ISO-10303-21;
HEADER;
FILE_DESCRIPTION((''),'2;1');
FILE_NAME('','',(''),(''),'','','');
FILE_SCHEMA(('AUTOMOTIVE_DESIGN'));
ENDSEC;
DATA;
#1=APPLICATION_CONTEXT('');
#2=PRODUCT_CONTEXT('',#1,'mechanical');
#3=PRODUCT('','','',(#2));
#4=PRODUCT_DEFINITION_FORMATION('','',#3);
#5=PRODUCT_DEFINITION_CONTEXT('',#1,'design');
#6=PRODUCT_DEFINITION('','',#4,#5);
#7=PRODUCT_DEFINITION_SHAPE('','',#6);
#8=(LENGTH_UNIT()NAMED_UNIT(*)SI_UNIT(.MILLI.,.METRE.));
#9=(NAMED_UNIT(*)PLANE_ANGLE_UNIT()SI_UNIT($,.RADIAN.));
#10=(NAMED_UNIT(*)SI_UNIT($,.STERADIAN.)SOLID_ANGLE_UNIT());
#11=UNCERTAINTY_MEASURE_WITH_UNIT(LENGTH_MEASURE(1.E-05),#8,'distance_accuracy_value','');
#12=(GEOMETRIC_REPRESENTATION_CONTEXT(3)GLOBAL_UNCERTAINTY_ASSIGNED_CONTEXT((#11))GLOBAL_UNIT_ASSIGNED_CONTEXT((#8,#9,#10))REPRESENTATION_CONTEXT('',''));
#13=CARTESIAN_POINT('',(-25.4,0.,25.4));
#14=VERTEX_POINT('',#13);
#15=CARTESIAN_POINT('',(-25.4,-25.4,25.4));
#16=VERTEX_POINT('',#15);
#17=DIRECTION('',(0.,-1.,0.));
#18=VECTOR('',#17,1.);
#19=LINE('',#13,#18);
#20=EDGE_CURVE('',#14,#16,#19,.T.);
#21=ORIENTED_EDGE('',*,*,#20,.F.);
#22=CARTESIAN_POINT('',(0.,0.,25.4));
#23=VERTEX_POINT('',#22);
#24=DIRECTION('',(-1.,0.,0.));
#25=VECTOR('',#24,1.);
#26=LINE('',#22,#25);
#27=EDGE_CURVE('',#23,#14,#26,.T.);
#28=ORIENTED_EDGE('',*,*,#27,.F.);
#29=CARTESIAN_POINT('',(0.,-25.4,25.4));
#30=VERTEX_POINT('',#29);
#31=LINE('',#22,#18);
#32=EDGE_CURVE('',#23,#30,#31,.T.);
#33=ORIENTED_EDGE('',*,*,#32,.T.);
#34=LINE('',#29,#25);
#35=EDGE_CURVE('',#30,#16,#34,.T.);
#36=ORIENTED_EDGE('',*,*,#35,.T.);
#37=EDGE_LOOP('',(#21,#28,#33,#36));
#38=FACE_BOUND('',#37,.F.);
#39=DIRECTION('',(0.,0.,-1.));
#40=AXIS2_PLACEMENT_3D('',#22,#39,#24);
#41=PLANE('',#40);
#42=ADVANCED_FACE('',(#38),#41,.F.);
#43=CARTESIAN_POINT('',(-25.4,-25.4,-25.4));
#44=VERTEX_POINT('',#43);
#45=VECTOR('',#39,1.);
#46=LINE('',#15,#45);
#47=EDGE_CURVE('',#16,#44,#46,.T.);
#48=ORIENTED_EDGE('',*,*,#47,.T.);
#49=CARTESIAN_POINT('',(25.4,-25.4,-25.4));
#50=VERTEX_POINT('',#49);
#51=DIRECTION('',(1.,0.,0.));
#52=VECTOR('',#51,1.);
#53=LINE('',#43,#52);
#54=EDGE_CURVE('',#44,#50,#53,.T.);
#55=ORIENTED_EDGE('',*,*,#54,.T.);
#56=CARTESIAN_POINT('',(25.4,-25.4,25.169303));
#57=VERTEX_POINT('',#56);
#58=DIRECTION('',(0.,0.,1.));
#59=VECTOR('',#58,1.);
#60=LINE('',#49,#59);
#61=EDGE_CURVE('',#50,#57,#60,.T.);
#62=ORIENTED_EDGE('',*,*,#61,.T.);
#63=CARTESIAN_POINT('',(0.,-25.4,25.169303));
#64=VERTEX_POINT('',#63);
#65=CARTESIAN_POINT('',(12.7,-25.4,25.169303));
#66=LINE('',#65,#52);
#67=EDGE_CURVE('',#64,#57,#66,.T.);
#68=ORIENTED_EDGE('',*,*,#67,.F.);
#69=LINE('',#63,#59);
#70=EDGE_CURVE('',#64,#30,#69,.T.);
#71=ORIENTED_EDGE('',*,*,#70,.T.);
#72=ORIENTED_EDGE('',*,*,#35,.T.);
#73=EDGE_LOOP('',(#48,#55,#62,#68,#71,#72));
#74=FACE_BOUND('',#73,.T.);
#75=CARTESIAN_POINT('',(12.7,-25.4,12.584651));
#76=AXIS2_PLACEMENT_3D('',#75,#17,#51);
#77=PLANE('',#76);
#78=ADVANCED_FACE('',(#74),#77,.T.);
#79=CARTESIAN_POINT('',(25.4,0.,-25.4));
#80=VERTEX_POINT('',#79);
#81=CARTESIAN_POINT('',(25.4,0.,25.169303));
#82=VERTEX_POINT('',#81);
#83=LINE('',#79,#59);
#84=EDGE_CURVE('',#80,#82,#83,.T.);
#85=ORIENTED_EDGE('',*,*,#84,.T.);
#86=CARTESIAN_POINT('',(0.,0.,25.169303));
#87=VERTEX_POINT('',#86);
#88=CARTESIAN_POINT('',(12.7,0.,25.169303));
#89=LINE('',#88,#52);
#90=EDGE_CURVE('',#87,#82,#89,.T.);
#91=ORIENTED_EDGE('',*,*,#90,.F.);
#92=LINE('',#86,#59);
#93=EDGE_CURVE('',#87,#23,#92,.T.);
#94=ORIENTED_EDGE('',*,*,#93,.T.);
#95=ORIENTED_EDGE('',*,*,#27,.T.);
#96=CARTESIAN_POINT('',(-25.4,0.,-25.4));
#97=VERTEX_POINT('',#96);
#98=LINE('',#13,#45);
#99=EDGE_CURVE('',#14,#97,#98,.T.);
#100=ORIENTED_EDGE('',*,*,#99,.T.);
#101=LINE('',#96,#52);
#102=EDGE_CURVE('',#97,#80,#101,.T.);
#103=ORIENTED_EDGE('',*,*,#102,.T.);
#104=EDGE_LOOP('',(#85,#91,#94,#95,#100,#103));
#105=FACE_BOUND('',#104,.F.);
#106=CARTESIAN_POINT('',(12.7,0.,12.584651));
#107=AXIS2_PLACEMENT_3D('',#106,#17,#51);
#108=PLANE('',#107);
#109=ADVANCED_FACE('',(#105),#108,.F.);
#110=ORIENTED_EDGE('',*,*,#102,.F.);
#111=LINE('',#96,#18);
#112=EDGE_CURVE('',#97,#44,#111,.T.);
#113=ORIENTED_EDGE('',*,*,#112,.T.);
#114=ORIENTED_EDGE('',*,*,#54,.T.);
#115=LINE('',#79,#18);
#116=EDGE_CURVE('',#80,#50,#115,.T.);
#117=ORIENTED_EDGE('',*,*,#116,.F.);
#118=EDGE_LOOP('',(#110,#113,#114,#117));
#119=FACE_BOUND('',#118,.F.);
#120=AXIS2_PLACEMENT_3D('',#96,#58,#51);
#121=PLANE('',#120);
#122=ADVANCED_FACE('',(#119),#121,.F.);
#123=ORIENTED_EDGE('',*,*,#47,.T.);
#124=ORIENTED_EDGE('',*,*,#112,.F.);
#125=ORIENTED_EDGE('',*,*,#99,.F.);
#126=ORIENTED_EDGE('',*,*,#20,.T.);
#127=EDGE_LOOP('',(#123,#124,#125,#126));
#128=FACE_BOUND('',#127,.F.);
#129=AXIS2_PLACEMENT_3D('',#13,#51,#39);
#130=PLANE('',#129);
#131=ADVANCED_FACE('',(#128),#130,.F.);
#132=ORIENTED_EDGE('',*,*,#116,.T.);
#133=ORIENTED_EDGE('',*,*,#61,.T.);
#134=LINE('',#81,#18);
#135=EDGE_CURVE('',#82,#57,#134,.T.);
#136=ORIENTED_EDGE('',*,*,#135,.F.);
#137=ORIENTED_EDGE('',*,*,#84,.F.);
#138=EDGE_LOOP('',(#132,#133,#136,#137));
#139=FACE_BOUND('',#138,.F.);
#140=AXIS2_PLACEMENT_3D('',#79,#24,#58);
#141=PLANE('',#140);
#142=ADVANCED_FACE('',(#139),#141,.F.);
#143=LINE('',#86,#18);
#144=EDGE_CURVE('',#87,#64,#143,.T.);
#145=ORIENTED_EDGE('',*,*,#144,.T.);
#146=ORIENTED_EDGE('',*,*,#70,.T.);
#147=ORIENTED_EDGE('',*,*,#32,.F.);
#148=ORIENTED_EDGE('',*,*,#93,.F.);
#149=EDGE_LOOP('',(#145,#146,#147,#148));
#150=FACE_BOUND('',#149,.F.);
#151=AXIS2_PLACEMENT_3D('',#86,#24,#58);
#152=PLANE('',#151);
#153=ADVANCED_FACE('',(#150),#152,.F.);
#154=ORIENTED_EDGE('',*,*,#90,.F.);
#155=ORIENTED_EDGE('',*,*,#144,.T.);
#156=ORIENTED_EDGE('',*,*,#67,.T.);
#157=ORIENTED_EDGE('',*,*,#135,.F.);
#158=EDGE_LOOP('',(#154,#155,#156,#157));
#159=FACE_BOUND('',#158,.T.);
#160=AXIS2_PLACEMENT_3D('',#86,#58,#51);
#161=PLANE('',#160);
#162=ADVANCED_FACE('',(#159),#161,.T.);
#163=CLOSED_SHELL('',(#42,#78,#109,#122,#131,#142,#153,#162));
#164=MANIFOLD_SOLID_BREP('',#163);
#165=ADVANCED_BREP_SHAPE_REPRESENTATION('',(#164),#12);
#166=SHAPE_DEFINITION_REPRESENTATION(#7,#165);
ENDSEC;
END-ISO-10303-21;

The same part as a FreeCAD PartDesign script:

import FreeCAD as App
import Part
import Sketcher
Q = App.Units.Quantity


def add_polygon(sketch, points):
    """Adds a closed chain of lines whose ends are joined by coincident constraints."""
    first, n = sketch.GeometryCount, len(points)
    for a, b in zip(points, points[1:] + points[:1]):
        sketch.addGeometry(Part.LineSegment(App.Vector(*a, 0), App.Vector(*b, 0)), False)
    for i in range(n):
        sketch.addConstraint(Sketcher.Constraint("Coincident", first + i, 2, first + (i + 1) % n, 1))

doc = App.newDocument("Part")
body = doc.addObject("PartDesign::Body", "Body")

# Sketch on XZ plane
sketch1 = doc.addObject("Sketcher::SketchObject", "Sketch")
body.addObject(sketch1)
sketch1.AttachmentSupport = (doc.XZ_Plane, [""])
sketch1.MapMode = "FlatFace"
add_polygon(sketch1, [(25.4, 25.17), (0, 25.17), (0, 25.4), (-25.4, 25.4), (-25.4, -25.4), (25.4, -25.4)])  # lines 0-5
sketch1.addConstraint(Sketcher.Constraint("Horizontal", 0))
sketch1.addConstraint(Sketcher.Constraint("Vertical", 1))
sketch1.addConstraint(Sketcher.Constraint("Horizontal", 2))
sketch1.addConstraint(Sketcher.Constraint("Vertical", 3))
sketch1.addConstraint(Sketcher.Constraint("Horizontal", 4))
sketch1.addConstraint(Sketcher.Constraint("Vertical", 5))
sketch1.addConstraint(Sketcher.Constraint("Symmetric", 2, 2, 4, 2, -1, 1))
sketch1.addConstraint(Sketcher.Constraint("PointOnObject", 0, 2, -2))
sketch1.addConstraint(Sketcher.Constraint("Equal", 4, 3))
sketch1.addConstraint(Sketcher.Constraint("DistanceX", 0, 2, 0, 1, Q("1 in")))
sketch1.addConstraint(Sketcher.Constraint("DistanceY", 1, 1, 1, 2, 0.230697))
pad1 = doc.addObject("PartDesign::Pad", "Pad")
body.addObject(pad1)
pad1.Profile = sketch1
pad1.Length = Q("1 in")

doc.recompute()
